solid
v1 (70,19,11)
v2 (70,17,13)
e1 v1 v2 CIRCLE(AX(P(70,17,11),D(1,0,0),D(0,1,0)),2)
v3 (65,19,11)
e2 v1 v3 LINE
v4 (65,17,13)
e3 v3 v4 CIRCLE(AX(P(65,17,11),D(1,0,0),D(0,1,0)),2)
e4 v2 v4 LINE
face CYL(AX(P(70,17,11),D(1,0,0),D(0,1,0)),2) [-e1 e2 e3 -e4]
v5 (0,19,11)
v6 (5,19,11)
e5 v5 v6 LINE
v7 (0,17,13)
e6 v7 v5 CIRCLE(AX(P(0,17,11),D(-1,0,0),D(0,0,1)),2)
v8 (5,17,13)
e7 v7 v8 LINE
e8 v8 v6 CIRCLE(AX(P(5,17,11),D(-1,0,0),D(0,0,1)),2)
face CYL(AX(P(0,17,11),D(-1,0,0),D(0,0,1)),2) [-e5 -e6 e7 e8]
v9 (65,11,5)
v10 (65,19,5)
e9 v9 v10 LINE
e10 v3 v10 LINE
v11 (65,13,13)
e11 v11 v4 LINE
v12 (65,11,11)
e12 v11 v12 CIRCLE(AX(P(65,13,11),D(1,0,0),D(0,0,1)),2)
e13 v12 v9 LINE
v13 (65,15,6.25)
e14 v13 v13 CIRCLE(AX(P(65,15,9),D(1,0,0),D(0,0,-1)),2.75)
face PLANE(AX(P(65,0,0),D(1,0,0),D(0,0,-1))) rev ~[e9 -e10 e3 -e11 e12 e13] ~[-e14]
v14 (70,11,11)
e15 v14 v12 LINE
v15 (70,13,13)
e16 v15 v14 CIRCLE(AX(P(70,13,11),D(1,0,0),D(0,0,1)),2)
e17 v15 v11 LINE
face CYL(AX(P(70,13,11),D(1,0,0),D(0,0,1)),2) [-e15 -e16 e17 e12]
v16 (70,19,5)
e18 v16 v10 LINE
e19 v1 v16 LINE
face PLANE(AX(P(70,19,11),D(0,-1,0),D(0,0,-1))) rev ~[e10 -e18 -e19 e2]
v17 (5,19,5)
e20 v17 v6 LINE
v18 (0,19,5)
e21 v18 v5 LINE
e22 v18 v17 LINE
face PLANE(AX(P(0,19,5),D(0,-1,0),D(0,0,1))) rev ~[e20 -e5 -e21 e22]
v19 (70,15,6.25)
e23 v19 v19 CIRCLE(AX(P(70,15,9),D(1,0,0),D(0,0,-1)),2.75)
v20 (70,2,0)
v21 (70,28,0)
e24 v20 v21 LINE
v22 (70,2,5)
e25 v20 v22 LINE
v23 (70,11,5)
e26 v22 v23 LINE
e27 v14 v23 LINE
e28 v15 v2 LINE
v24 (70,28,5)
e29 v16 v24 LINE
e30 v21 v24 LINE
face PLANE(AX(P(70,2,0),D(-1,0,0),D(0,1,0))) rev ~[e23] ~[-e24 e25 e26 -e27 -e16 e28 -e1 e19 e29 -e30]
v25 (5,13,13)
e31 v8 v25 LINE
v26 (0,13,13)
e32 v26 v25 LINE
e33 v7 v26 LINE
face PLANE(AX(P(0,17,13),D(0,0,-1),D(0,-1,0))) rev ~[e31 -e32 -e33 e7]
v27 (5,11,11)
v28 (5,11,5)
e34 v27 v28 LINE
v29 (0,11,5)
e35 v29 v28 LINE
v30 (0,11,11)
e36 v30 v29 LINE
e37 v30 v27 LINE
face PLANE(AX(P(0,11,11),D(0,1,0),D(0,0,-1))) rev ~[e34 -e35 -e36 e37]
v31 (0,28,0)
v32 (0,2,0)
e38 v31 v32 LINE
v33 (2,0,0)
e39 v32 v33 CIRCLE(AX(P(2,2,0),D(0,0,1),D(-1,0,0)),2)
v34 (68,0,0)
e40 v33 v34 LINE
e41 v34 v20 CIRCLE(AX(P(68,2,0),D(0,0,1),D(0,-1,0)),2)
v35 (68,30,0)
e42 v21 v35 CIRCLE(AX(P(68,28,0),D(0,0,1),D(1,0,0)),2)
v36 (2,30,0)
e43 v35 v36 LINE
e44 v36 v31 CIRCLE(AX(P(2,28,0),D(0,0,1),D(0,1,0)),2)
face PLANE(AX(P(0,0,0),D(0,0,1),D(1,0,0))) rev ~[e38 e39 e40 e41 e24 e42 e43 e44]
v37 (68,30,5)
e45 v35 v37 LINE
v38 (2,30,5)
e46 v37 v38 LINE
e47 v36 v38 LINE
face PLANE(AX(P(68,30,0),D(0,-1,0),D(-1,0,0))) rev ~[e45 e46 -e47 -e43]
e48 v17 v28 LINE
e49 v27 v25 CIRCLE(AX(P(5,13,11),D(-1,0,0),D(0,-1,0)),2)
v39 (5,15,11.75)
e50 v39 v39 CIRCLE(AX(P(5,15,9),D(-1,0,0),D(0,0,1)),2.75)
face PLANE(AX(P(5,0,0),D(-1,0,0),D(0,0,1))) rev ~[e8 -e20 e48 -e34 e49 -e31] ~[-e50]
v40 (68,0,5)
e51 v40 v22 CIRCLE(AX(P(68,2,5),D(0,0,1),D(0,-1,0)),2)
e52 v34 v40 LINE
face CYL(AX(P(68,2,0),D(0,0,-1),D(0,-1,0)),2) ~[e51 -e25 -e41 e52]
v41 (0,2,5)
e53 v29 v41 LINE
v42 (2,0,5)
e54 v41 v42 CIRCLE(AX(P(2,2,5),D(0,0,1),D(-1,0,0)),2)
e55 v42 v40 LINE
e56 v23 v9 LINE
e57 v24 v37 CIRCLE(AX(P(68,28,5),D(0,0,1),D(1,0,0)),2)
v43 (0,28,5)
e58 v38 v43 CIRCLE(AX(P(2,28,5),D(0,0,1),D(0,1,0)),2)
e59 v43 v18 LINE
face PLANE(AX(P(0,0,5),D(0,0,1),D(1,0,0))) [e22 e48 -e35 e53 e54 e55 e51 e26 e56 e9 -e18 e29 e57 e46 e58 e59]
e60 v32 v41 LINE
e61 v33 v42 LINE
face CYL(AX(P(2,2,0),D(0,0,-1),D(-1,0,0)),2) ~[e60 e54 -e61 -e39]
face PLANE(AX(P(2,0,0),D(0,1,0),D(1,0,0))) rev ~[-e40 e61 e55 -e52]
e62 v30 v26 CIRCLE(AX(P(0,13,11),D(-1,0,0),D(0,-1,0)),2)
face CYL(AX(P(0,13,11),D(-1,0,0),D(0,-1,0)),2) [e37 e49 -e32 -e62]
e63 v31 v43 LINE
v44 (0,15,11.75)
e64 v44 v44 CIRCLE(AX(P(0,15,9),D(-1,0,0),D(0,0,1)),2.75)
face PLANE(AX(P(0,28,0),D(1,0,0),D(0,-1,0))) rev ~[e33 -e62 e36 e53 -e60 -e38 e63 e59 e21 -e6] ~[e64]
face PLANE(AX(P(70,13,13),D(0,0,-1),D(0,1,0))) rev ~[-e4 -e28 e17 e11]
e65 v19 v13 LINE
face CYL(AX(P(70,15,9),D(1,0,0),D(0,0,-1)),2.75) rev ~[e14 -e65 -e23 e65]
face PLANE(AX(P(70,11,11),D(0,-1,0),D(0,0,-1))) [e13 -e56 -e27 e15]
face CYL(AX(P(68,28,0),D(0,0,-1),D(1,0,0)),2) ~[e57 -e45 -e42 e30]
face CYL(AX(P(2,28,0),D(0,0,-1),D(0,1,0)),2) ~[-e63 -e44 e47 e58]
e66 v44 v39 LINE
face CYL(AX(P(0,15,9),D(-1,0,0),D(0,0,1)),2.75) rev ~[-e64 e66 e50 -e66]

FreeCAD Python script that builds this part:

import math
import FreeCAD as App
import Part
import Sketcher

V = App.Vector
Q = App.Units.Quantity

doc = App.newDocument("Part")
body = doc.addObject("PartDesign::Body", "Body")

# Sketch on XY plane
sketch1 = body.newObject("Sketcher::SketchObject", "Sketch")
sketch1.AttachmentSupport = (doc.getObject("XY_Plane"), [""])
sketch1.MapMode = "FlatFace"
sketch1.addGeometry([
    Part.ArcOfCircle(Part.Circle(V(2, 2, 0), V(0, 0, 1), 2), math.radians(180), math.radians(270)),  # 0
    Part.LineSegment(V(2, 0, 0), V(68, 0, 0)),  # 1
    Part.ArcOfCircle(Part.Circle(V(68, 2, 0), V(0, 0, 1), 2), math.radians(-90), math.radians(0)),  # 2
    Part.LineSegment(V(70, 2, 0), V(70, 28, 0)),  # 3
    Part.ArcOfCircle(Part.Circle(V(68, 28, 0), V(0, 0, 1), 2), math.radians(0), math.radians(90)),  # 4
    Part.LineSegment(V(68, 30, 0), V(2, 30, 0)),  # 5
    Part.ArcOfCircle(Part.Circle(V(2, 28, 0), V(0, 0, 1), 2), math.radians(90), math.radians(180)),  # 6
    Part.LineSegment(V(0, 28, 0), V(0, 2, 0)),  # 7
], False)
sketch1.addConstraint([
    Sketcher.Constraint("Tangent", 0, 2, 1, 1),
    Sketcher.Constraint("Tangent", 1, 2, 2, 1),
    Sketcher.Constraint("Tangent", 2, 2, 3, 1),
    Sketcher.Constraint("Tangent", 3, 2, 4, 1),
    Sketcher.Constraint("Tangent", 4, 2, 5, 1),
    Sketcher.Constraint("Tangent", 5, 2, 6, 1),
    Sketcher.Constraint("Tangent", 6, 2, 7, 1),
    Sketcher.Constraint("Tangent", 7, 2, 0, 1),
    Sketcher.Constraint("Horizontal", 1),
    Sketcher.Constraint("Vertical", 3),
    Sketcher.Constraint("Horizontal", 5),
    Sketcher.Constraint("Vertical", 7),
    Sketcher.Constraint("Equal", 0, 2),
    Sketcher.Constraint("Equal", 2, 4),
    Sketcher.Constraint("Equal", 4, 6),
    Sketcher.Constraint("PointOnObject", 0, 2, -1),
    Sketcher.Constraint("PointOnObject", 6, 2, -2),
    Sketcher.Constraint("Radius", 0, Q("2 mm")),
    Sketcher.Constraint("DistanceX", -1, 1, 2, 2, Q("70 mm")),
    Sketcher.Constraint("DistanceY", -1, 1, 4, 2, Q("30 mm")),
])
pad1 = body.newObject("PartDesign::Pad", "Pad")
pad1.Profile = sketch1
pad1.Length = 5

# Sketch on YZ plane
sketch2 = body.newObject("Sketcher::SketchObject", "Sketch001")
sketch2.AttachmentSupport = (doc.getObject("YZ_Plane"), [""])
sketch2.MapMode = "FlatFace"
sketch2.addGeometry([
    Part.LineSegment(V(19, 5, 0), V(11, 5, 0)),  # 0
    Part.LineSegment(V(11, 5, 0), V(11, 11, 0)),  # 1
    Part.ArcOfCircle(Part.Circle(V(13, 11, 0), V(0, 0, 1), 2), math.radians(90), math.radians(180)),  # 2
    Part.LineSegment(V(13, 13, 0), V(17, 13, 0)),  # 3
    Part.ArcOfCircle(Part.Circle(V(17, 11, 0), V(0, 0, 1), 2), math.radians(0), math.radians(90)),  # 4
    Part.LineSegment(V(19, 11, 0), V(19, 5, 0)),  # 5
    Part.Circle(V(15, 9, 0), V(0, 0, 1), 2.8),  # 6
], False)
sketch2.addConstraint([
    Sketcher.Constraint("Coincident", 0, 2, 1, 1),
    Sketcher.Constraint("Tangent", 1, 2, 2, 2),
    Sketcher.Constraint("Tangent", 2, 1, 3, 1),
    Sketcher.Constraint("Tangent", 3, 2, 4, 2),
    Sketcher.Constraint("Tangent", 4, 1, 5, 1),
    Sketcher.Constraint("Coincident", 5, 2, 0, 1),
    Sketcher.Constraint("Horizontal", 0),
    Sketcher.Constraint("Vertical", 1),
    Sketcher.Constraint("Horizontal", 3),
    Sketcher.Constraint("Vertical", 5),
    Sketcher.Constraint("Equal", 2, 4),
    Sketcher.Constraint("Radius", 2, Q("2 mm")),
    Sketcher.Constraint("Diameter", 6, Q("5.5 mm")),
    Sketcher.Constraint("DistanceX", 0, 2, 0, 1, Q("8 mm")),
    Sketcher.Constraint("DistanceX", 2, 3, 6, 3, Q("2 mm")),
    Sketcher.Constraint("DistanceY", 6, 3, 2, 3, Q("2 mm")),
    Sketcher.Constraint("DistanceY", 0, 2, 6, 3, Q("4 mm")),
    Sketcher.Constraint("DistanceX", -1, 1, 2, 3, Q("13 mm")),
    Sketcher.Constraint("DistanceY", -1, 1, 2, 3, Q("11 mm")),
])
pad2 = body.newObject("PartDesign::Pad", "Pad001")
pad2.Profile = sketch2
pad2.Length = 5

# Sketch on YZ plane
sketch3 = body.newObject("Sketcher::SketchObject", "Sketch002")
sketch3.AttachmentSupport = (doc.getObject("YZ_Plane"), [""])
sketch3.MapMode = "FlatFace"
sketch3.AttachmentOffset = App.Placement(V(0, 0, 70), App.Rotation())
sketch3.addGeometry([
    Part.LineSegment(V(19, 5, 0), V(19, 11, 0)),  # 0
    Part.ArcOfCircle(Part.Circle(V(17, 11, 0), V(0, 0, 1), 2), math.radians(0), math.radians(90)),  # 1
    Part.LineSegment(V(17, 13, 0), V(13, 13, 0)),  # 2
    Part.ArcOfCircle(Part.Circle(V(13, 11, 0), V(0, 0, 1), 2), math.radians(90), math.radians(180)),  # 3
    Part.LineSegment(V(11, 11, 0), V(11, 5, 0)),  # 4
    Part.LineSegment(V(11, 5, 0), V(19, 5, 0)),  # 5
    Part.Circle(V(15, 9, 0), V(0, 0, 1), 2.8),  # 6
], False)
sketch3.addConstraint([
    Sketcher.Constraint("Tangent", 0, 2, 1, 1),
    Sketcher.Constraint("Tangent", 1, 2, 2, 1),
    Sketcher.Constraint("Tangent", 2, 2, 3, 1),
    Sketcher.Constraint("Tangent", 3, 2, 4, 1),
    Sketcher.Constraint("Coincident", 4, 2, 5, 1),
    Sketcher.Constraint("Coincident", 5, 2, 0, 1),
    Sketcher.Constraint("Vertical", 0),
    Sketcher.Constraint("Horizontal", 2),
    Sketcher.Constraint("Vertical", 4),
    Sketcher.Constraint("Horizontal", 5),
    Sketcher.Constraint("Equal", 1, 3),
    Sketcher.Constraint("Radius", 1, Q("2 mm")),
    Sketcher.Constraint("DistanceX", 6, 3, 1, 3, Q("2 mm")),
    Sketcher.Constraint("DistanceY", 6, 3, 1, 3, Q("2 mm")),
    Sketcher.Constraint("DistanceX", 3, 3, 6, 3, Q("2 mm")),
    Sketcher.Constraint("Diameter", 6, Q("5.5 mm")),
    Sketcher.Constraint("DistanceY", 0, 1, 0, 2, Q("6 mm")),
    Sketcher.Constraint("DistanceX", -1, 1, 1, 3, Q("17 mm")),
    Sketcher.Constraint("DistanceY", -1, 1, 1, 3, Q("11 mm")),
])
pad3 = body.newObject("PartDesign::Pad", "Pad002")
pad3.Profile = sketch3
pad3.Length = 5
pad3.Reversed = True

doc.recompute()
